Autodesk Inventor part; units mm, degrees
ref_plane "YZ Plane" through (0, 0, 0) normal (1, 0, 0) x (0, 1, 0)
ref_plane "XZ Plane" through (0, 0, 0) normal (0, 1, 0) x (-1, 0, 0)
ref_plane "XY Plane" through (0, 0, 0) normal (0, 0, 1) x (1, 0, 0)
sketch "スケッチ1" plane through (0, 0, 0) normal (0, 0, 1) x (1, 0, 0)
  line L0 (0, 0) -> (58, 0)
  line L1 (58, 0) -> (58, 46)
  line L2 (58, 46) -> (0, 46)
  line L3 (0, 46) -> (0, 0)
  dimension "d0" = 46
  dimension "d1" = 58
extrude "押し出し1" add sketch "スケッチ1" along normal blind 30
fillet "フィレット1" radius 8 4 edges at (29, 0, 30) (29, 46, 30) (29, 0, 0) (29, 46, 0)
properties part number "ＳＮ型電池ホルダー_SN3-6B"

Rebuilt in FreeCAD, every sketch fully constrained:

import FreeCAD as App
import Part
import Sketcher
from FreeCAD import Vector
Q = App.Units.Quantity


def edges_at(feature, points):
    """Names of the edges that pass closest to the given points."""
    edges = feature.Shape.Edges
    near = lambda p: min(range(len(edges)), key=lambda i: edges[i].distToShape(Part.Vertex(*p))[0])
    return sorted({f"Edge{near(p) + 1}" for p in points})


def add_polygon(sketch, points):
    """Adds a closed chain of lines whose ends are joined by coincident constraints."""
    first, n = sketch.GeometryCount, len(points)
    for a, b in zip(points, points[1:] + points[:1]):
        sketch.addGeometry(Part.LineSegment(App.Vector(*a, 0), App.Vector(*b, 0)), False)
    for i in range(n):
        sketch.addConstraint(Sketcher.Constraint("Coincident", first + i, 2, first + (i + 1) % n, 1))

doc = App.newDocument("Part")
body = doc.addObject("PartDesign::Body", "Body")

sketch1 = body.newObject("Sketcher::SketchObject", "Sketch")
sketch1.AttachmentSupport = (doc.getObject("XY_Plane"), [""])
sketch1.MapMode = "FlatFace"
add_polygon(sketch1, [(0, 46), (0, 0), (58, 0), (58, 46)])
sketch1.addConstraint(Sketcher.Constraint("Vertical", 0))
sketch1.addConstraint(Sketcher.Constraint("Horizontal", 1))
sketch1.addConstraint(Sketcher.Constraint("Vertical", 2))
sketch1.addConstraint(Sketcher.Constraint("Horizontal", 3))
sketch1.addConstraint(Sketcher.Constraint("Coincident", 0, 2, -1, 1))
sketch1.addConstraint(Sketcher.Constraint("DistanceX", 1, 1, 1, 2, Q("58 mm")))
sketch1.addConstraint(Sketcher.Constraint("DistanceY", 0, 2, 0, 1, Q("46 mm")))
pad1 = body.newObject("PartDesign::Pad", "Pad")
pad1.Profile = sketch1
pad1.Length = 30
doc.recompute()

fillet = body.newObject("PartDesign::Fillet", "Fillet")
fillet.Base = (pad1, edges_at(pad1, [
    (29, 0, 30),
    (29, 46, 30),
    (29, 0, 0),
    (29, 46, 0),
]))
fillet.Radius = 8

doc.recompute()
